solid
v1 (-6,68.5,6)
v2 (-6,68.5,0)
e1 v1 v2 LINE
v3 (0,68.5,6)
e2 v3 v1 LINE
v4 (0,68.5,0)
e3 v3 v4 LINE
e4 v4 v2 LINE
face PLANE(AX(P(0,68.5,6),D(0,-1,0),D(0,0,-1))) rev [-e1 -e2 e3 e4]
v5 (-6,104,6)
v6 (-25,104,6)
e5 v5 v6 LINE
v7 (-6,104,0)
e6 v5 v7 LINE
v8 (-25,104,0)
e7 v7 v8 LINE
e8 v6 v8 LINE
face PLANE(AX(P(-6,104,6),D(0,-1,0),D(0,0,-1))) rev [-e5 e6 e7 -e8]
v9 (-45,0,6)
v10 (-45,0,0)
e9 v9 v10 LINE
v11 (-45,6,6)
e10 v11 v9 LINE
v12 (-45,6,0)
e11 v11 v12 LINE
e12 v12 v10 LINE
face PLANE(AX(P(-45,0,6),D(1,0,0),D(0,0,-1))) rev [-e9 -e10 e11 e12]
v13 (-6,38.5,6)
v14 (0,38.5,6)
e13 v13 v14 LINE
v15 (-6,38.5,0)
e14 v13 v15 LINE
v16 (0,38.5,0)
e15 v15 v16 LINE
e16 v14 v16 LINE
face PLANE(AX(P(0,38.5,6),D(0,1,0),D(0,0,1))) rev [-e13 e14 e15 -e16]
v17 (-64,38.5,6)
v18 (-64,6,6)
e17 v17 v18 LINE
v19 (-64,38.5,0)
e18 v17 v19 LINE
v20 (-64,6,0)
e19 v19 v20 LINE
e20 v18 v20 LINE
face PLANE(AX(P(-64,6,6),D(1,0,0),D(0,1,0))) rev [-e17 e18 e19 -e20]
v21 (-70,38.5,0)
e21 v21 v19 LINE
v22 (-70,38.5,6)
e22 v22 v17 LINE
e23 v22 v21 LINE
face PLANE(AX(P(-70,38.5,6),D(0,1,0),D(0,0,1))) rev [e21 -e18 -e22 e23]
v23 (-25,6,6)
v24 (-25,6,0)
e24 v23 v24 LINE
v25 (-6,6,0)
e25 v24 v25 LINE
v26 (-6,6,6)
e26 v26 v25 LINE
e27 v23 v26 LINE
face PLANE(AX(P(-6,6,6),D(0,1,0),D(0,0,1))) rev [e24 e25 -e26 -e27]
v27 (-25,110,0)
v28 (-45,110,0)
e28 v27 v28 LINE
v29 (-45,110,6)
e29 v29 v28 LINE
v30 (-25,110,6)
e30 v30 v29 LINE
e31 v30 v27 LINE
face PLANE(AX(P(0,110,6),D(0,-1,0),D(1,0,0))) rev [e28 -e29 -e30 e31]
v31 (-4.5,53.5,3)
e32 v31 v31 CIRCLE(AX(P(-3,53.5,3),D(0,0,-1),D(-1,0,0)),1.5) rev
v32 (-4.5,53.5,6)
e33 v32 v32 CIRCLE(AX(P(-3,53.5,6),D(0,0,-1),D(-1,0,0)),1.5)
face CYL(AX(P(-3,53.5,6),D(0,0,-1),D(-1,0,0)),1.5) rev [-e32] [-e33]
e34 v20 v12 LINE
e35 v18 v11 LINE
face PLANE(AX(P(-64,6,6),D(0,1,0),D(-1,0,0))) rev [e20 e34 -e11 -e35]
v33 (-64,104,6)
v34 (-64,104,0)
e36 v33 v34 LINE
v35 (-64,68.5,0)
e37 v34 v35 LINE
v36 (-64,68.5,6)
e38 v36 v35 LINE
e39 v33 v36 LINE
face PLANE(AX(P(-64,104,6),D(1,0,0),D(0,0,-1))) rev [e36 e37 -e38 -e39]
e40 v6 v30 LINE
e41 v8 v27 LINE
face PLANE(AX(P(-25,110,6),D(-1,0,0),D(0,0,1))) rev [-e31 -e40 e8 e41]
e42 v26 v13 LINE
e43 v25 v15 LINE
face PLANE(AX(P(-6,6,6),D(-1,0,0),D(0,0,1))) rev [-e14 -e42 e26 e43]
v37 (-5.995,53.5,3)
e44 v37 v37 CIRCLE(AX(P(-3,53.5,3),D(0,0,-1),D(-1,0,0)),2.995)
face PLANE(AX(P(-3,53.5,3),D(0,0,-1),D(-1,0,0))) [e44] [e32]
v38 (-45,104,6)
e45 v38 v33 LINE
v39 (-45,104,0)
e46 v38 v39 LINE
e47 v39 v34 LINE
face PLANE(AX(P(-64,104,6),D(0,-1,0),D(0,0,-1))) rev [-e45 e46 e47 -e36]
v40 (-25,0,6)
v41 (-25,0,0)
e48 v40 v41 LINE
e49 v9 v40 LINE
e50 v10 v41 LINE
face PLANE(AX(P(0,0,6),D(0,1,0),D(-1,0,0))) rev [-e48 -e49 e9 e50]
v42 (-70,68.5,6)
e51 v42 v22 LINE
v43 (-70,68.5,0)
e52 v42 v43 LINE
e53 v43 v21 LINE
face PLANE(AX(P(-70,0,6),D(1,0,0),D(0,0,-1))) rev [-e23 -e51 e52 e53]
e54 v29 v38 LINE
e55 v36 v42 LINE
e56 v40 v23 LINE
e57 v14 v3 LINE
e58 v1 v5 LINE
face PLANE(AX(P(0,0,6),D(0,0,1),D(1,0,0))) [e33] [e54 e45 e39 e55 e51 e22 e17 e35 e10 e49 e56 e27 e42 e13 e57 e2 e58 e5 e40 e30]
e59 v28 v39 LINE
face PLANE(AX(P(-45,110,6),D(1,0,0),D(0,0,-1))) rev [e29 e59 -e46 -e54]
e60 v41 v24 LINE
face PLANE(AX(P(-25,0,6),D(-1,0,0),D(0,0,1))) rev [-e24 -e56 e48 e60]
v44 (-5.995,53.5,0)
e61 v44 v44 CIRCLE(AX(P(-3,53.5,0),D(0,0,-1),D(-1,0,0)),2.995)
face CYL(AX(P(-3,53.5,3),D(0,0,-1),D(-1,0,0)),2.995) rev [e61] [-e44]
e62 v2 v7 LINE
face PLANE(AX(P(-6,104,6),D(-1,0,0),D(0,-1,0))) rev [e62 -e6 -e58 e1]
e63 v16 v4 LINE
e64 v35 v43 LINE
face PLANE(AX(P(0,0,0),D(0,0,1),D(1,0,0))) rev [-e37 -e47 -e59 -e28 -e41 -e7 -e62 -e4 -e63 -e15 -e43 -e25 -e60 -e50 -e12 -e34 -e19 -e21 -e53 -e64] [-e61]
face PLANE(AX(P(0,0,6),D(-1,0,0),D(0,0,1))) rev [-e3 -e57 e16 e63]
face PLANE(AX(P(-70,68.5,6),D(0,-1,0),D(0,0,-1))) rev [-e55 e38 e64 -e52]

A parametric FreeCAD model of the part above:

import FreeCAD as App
import Part
import Sketcher

V = App.Vector
Q = App.Units.Quantity

doc = App.newDocument("Part")
body = doc.addObject("PartDesign::Body", "Body")

# Sketch on XY plane
sketch1 = doc.addObject("Sketcher::SketchObject", "Sketch")
body.addObject(sketch1)
sketch1.AttachmentSupport = (doc.XY_Plane, [""])
sketch1.MapMode = "FlatFace"
sketch1.addGeometry([
    Part.LineSegment(V(-70, 110, 0), V(-70, 0, 0)),
    Part.LineSegment(V(-70, 0, 0), V(0, 0, 0)),
    Part.LineSegment(V(0, 0, 0), V(0, 110, 0)),
    Part.LineSegment(V(0, 110, 0), V(-70, 110, 0)),
], False)
sketch1.addConstraint([
    Sketcher.Constraint("Coincident", 0, 2, 1, 1),
    Sketcher.Constraint("Coincident", 1, 2, 2, 1),
    Sketcher.Constraint("Coincident", 2, 2, 3, 1),
    Sketcher.Constraint("Coincident", 3, 2, 0, 1),
    Sketcher.Constraint("Vertical", 0),
    Sketcher.Constraint("Horizontal", 1),
    Sketcher.Constraint("Vertical", 2),
    Sketcher.Constraint("Horizontal", 3),
    Sketcher.Constraint("Coincident", 1, 2, -1, 1),
    Sketcher.Constraint("DistanceX", 1, 1, 1, 2, Q("70 mm")),
    Sketcher.Constraint("DistanceY", 0, 2, 0, 1, Q("110 mm")),
])
pad1 = doc.addObject("PartDesign::Pad", "Pad")
body.addObject(pad1)
pad1.Profile = sketch1
pad1.Length = 6

# Sketch on XY plane
sketch2 = doc.addObject("Sketcher::SketchObject", "Sketch001")
body.addObject(sketch2)
sketch2.AttachmentSupport = (doc.XY_Plane, [""])
sketch2.MapMode = "FlatFace"
sketch2.addGeometry([
    Part.LineSegment(V(-25, 110, 0), V(0, 110, 0)),  # 0
    Part.LineSegment(V(0, 110, 0), V(0, 68.5, 0)),  # 1
    Part.LineSegment(V(0, 68.5, 0), V(-6, 68.5, 0)),  # 2
    Part.LineSegment(V(-6, 68.5, 0), V(-6, 104, 0)),  # 3
    Part.LineSegment(V(-6, 104, 0), V(-25, 104, 0)),  # 4
    Part.LineSegment(V(-25, 104, 0), V(-25, 110, 0)),  # 5
    Part.LineSegment(V(-70, 110, 0), V(-45, 110, 0)),  # 6
    Part.LineSegment(V(-45, 110, 0), V(-45, 104, 0)),  # 7
    Part.LineSegment(V(-45, 104, 0), V(-64, 104, 0)),  # 8
    Part.LineSegment(V(-64, 104, 0), V(-64, 68.5, 0)),  # 9
    Part.LineSegment(V(-64, 68.5, 0), V(-70, 68.5, 0)),  # 10
    Part.LineSegment(V(-70, 68.5, 0), V(-70, 110, 0)),  # 11
    Part.LineSegment(V(0, 0, 0), V(-25, 0, 0)),  # 12
    Part.LineSegment(V(-25, 0, 0), V(-25, 6, 0)),  # 13
    Part.LineSegment(V(-25, 6, 0), V(-6, 6, 0)),  # 14
    Part.LineSegment(V(-6, 6, 0), V(-6, 38.5, 0)),  # 15
    Part.LineSegment(V(-6, 38.5, 0), V(0, 38.5, 0)),  # 16
    Part.LineSegment(V(0, 38.5, 0), V(0, 0, 0)),  # 17
    Part.LineSegment(V(-45, 0, 0), V(-70, 0, 0)),  # 18
    Part.LineSegment(V(-70, 0, 0), V(-70, 38.5, 0)),  # 19
    Part.LineSegment(V(-70, 38.5, 0), V(-64, 38.5, 0)),  # 20
    Part.LineSegment(V(-64, 38.5, 0), V(-64, 6, 0)),  # 21
    Part.LineSegment(V(-64, 6, 0), V(-45, 6, 0)),  # 22
    Part.LineSegment(V(-45, 6, 0), V(-45, 0, 0)),  # 23
], False)
sketch2.addConstraint([
    Sketcher.Constraint("Coincident", 0, 2, 1, 1),
    Sketcher.Constraint("Coincident", 1, 2, 2, 1),
    Sketcher.Constraint("Coincident", 2, 2, 3, 1),
    Sketcher.Constraint("Coincident", 3, 2, 4, 1),
    Sketcher.Constraint("Coincident", 4, 2, 5, 1),
    Sketcher.Constraint("Coincident", 5, 2, 0, 1),
    Sketcher.Constraint("Coincident", 6, 2, 7, 1),
    Sketcher.Constraint("Coincident", 7, 2, 8, 1),
    Sketcher.Constraint("Coincident", 8, 2, 9, 1),
    Sketcher.Constraint("Coincident", 9, 2, 10, 1),
    Sketcher.Constraint("Coincident", 10, 2, 11, 1),
    Sketcher.Constraint("Coincident", 11, 2, 6, 1),
    Sketcher.Constraint("Coincident", 12, 2, 13, 1),
    Sketcher.Constraint("Coincident", 13, 2, 14, 1),
    Sketcher.Constraint("Coincident", 14, 2, 15, 1),
    Sketcher.Constraint("Coincident", 15, 2, 16, 1),
    Sketcher.Constraint("Coincident", 16, 2, 17, 1),
    Sketcher.Constraint("Coincident", 17, 2, 12, 1),
    Sketcher.Constraint("Coincident", 18, 2, 19, 1),
    Sketcher.Constraint("Coincident", 19, 2, 20, 1),
    Sketcher.Constraint("Coincident", 20, 2, 21, 1),
    Sketcher.Constraint("Coincident", 21, 2, 22, 1),
    Sketcher.Constraint("Coincident", 22, 2, 23, 1),
    Sketcher.Constraint("Coincident", 23, 2, 18, 1),
    Sketcher.Constraint("Horizontal", 0),
    Sketcher.Constraint("Vertical", 1),
    Sketcher.Constraint("Horizontal", 2),
    Sketcher.Constraint("Vertical", 3),
    Sketcher.Constraint("Horizontal", 4),
    Sketcher.Constraint("Vertical", 5),
    Sketcher.Constraint("Horizontal", 6),
    Sketcher.Constraint("Vertical", 7),
    Sketcher.Constraint("Horizontal", 8),
    Sketcher.Constraint("Vertical", 9),
    Sketcher.Constraint("Horizontal", 10),
    Sketcher.Constraint("Vertical", 11),
    Sketcher.Constraint("Horizontal", 12),
    Sketcher.Constraint("Vertical", 13),
    Sketcher.Constraint("Horizontal", 14),
    Sketcher.Constraint("Vertical", 15),
    Sketcher.Constraint("Horizontal", 16),
    Sketcher.Constraint("Vertical", 17),
    Sketcher.Constraint("Horizontal", 18),
    Sketcher.Constraint("Vertical", 19),
    Sketcher.Constraint("Horizontal", 20),
    Sketcher.Constraint("Vertical", 21),
    Sketcher.Constraint("Horizontal", 22),
    Sketcher.Constraint("Vertical", 23),
    Sketcher.Constraint("Coincident", 17, 2, -1, 1),
    Sketcher.Constraint("PointOnObject", 0, 2, -2),
    Sketcher.Constraint("PointOnObject", 18, 2, -1),
    Sketcher.Constraint("Horizontal", 5, 2, 6, 2),
    Sketcher.Constraint("Horizontal", 4, 2, 7, 2),
    Sketcher.Constraint("Horizontal", 2, 2, 9, 2),
    Sketcher.Constraint("Horizontal", 16, 2, 19, 2),
    Sketcher.Constraint("Horizontal", 14, 2, 21, 2),
    Sketcher.Constraint("Vertical", 5, 2, 12, 2),
    Sketcher.Constraint("Vertical", 3, 2, 14, 2),
    Sketcher.Constraint("Vertical", 11, 2, 18, 2),
    Sketcher.Constraint("Vertical", 9, 2, 20, 2),
    Sketcher.Constraint("Vertical", 7, 2, 22, 2),
    Sketcher.Constraint("Equal", 0, 6),
    Sketcher.Constraint("Equal", 4, 8),
    Sketcher.Constraint("Equal", 20, 5),
    Sketcher.Constraint("Equal", 7, 13),
    Sketcher.Constraint("DistanceX", 0, 1, 0, 2, Q("25 mm")),
    Sketcher.Constraint("DistanceX", 2, 2, 2, 1, Q("6 mm")),
    Sketcher.Constraint("DistanceY", 1, 2, 1, 1, Q("41.5 mm")),
    Sketcher.Constraint("DistanceY", 15, 1, 15, 2, Q("32.5 mm")),
    Sketcher.Constraint("DistanceY", -1, 1, 0, 2, Q("110 mm")),
    Sketcher.Constraint("DistanceX", 6, 2, -1, 1, Q("45 mm")),
])
pocket1 = doc.addObject("PartDesign::Pocket", "Pocket")
body.addObject(pocket1)
pocket1.Profile = sketch2
pocket1.Type = "ThroughAll"
pocket1.Reversed = True

# Sketch on XY plane
sketch3 = doc.addObject("Sketcher::SketchObject", "Sketch002")
body.addObject(sketch3)
sketch3.AttachmentSupport = (doc.XY_Plane, [""])
sketch3.MapMode = "FlatFace"
sketch3.addGeometry(Part.Circle(V(-3, 53.5, 0), V(0, 0, 1), 1.5), False)
sketch3.addConstraint([
    Sketcher.Constraint("Diameter", 0, Q("3 mm")),
    Sketcher.Constraint("DistanceX", 0, 3, -1, 1, Q("3 mm")),
    Sketcher.Constraint("DistanceY", -1, 1, 0, 3, Q("53.5 mm")),
])
pocket2 = doc.addObject("PartDesign::Pocket", "Pocket001")
body.addObject(pocket2)
pocket2.Profile = sketch3
pocket2.Type = "ThroughAll"
pocket2.Reversed = True

# Sketch on XY plane
sketch4 = doc.addObject("Sketcher::SketchObject", "Sketch003")
body.addObject(sketch4)
sketch4.AttachmentSupport = (doc.XY_Plane, [""])
sketch4.MapMode = "FlatFace"
sketch4.addGeometry(Part.Circle(V(-3, 53.5, 0), V(0, 0, 1), 2.995), False)
sketch4.addConstraint([
    Sketcher.Constraint("Diameter", 0, Q("5.99 mm")),
    Sketcher.Constraint("DistanceX", 0, 3, -1, 1, Q("3 mm")),
    Sketcher.Constraint("DistanceY", -1, 1, 0, 3, Q("53.5 mm")),
])
pocket3 = doc.addObject("PartDesign::Pocket", "Pocket002")
body.addObject(pocket3)
pocket3.Profile = sketch4
pocket3.Length = 3
pocket3.Reversed = True

doc.recompute()
